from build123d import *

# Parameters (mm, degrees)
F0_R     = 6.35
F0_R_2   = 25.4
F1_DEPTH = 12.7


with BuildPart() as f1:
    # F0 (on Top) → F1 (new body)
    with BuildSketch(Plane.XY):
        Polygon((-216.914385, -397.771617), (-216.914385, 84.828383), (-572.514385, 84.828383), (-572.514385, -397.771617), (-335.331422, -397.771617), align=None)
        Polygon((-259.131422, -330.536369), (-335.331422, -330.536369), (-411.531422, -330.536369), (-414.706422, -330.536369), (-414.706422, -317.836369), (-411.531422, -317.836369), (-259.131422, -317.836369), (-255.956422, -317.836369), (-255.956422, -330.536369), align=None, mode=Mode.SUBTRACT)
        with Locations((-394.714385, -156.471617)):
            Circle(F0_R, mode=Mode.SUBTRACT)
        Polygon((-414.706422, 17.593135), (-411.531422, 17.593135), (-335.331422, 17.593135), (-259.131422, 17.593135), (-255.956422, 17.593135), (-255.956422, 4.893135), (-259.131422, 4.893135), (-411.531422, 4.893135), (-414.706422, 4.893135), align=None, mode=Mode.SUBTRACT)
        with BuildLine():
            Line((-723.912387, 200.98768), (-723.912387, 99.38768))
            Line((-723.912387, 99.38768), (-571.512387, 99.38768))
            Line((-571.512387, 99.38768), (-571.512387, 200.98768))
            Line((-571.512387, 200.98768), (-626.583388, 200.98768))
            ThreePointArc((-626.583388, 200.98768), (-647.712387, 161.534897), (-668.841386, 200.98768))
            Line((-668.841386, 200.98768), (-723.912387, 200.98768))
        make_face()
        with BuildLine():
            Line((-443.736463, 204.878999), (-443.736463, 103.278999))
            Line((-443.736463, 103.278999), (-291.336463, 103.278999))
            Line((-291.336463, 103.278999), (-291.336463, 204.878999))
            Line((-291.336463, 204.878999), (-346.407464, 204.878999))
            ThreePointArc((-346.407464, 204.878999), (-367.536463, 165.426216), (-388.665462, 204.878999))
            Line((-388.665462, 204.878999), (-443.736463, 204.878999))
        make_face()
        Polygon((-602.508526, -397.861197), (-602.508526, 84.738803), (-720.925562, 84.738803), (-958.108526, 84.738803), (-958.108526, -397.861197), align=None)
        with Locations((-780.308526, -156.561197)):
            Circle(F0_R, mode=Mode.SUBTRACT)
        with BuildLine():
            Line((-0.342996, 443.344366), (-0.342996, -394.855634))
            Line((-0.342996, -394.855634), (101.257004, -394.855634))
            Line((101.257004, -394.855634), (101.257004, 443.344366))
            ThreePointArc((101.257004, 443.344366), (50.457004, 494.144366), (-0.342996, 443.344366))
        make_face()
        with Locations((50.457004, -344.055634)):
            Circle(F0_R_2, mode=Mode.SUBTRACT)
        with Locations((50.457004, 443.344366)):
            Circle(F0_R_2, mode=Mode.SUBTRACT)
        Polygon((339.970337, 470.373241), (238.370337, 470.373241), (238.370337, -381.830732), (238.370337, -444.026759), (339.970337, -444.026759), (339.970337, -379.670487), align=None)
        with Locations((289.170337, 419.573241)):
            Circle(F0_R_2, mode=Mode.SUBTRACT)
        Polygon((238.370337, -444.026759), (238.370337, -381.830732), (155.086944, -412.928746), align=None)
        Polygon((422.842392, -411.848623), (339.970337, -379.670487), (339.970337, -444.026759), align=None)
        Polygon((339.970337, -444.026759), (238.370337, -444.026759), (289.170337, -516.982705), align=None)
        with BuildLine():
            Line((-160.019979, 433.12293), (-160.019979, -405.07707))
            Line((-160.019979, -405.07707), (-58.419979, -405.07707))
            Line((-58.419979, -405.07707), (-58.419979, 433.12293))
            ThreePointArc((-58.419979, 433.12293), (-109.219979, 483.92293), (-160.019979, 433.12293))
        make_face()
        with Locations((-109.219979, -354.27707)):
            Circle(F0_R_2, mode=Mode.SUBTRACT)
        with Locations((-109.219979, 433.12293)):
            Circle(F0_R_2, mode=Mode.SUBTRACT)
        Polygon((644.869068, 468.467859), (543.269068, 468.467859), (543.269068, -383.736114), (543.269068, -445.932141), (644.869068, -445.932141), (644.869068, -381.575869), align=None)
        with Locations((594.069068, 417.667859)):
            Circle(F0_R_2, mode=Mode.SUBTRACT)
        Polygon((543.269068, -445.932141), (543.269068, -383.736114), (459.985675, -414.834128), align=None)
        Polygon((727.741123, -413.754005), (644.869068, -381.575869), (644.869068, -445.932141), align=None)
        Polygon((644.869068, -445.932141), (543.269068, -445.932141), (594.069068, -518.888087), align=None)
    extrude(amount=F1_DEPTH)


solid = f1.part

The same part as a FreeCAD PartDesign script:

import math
import FreeCAD as App
import Part
import Sketcher
from FreeCAD import Vector
Q = App.Units.Quantity

doc = App.newDocument("Part")
body = doc.addObject("PartDesign::Body", "Body")
body.AllowCompound = True

sketch1 = doc.addObject("Sketcher::SketchObject", "Sketch")
body.addObject(sketch1)
sketch1.AttachmentSupport = (doc.XY_Plane, [""])
sketch1.MapMode = "FlatFace"
sketch1.addGeometry([
    Part.LineSegment(Vector(-217, -398, 0), Vector(-217, 85, 0)),
    Part.LineSegment(Vector(-217, 85, 0), Vector(-573, 85, 0)),
    Part.LineSegment(Vector(-573, 85, 0), Vector(-573, -398, 0)),
    Part.LineSegment(Vector(-573, -398, 0), Vector(-217, -398, 0)),
    Part.Circle(Vector(-395, -156, 0), Vector(0, 0, 1), 6),
    Part.LineSegment(Vector(-256, -331, 0), Vector(-415, -331, 0)),
    Part.LineSegment(Vector(-415, -331, 0), Vector(-415, -318, 0)),
    Part.LineSegment(Vector(-415, -318, 0), Vector(-256, -318, 0)),
    Part.LineSegment(Vector(-256, -318, 0), Vector(-256, -331, 0)),
    Part.LineSegment(Vector(-415, 5, 0), Vector(-415, 18, 0)),
    Part.LineSegment(Vector(-415, 18, 0), Vector(-256, 18, 0)),
    Part.LineSegment(Vector(-256, 18, 0), Vector(-256, 5, 0)),
    Part.LineSegment(Vector(-256, 5, 0), Vector(-415, 5, 0)),
    Part.LineSegment(Vector(-724, 201, 0), Vector(-724, 99, 0)),
    Part.LineSegment(Vector(-724, 99, 0), Vector(-572, 99, 0)),
    Part.LineSegment(Vector(-572, 99, 0), Vector(-572, 201, 0)),
    Part.LineSegment(Vector(-572, 201, 0), Vector(-627, 201, 0)),
    Part.ArcOfCircle(Part.Circle(Vector(-648, 187, 0), Vector(0, 0, 1), 25), math.radians(146), math.radians(394)),
    Part.LineSegment(Vector(-669, 201, 0), Vector(-724, 201, 0)),
    Part.LineSegment(Vector(-444, 205, 0), Vector(-444, 103, 0)),
    Part.LineSegment(Vector(-444, 103, 0), Vector(-291, 103, 0)),
    Part.LineSegment(Vector(-291, 103, 0), Vector(-291, 205, 0)),
    Part.LineSegment(Vector(-291, 205, 0), Vector(-346, 205, 0)),
    Part.ArcOfCircle(Part.Circle(Vector(-368, 191, 0), Vector(0, 0, 1), 25), math.radians(146), math.radians(394)),
    Part.LineSegment(Vector(-389, 205, 0), Vector(-444, 205, 0)),
    Part.LineSegment(Vector(-603, -398, 0), Vector(-603, 85, 0)),
    Part.LineSegment(Vector(-603, 85, 0), Vector(-958, 85, 0)),
    Part.LineSegment(Vector(-958, 85, 0), Vector(-958, -398, 0)),
    Part.LineSegment(Vector(-958, -398, 0), Vector(-603, -398, 0)),
    Part.Circle(Vector(-780, -157, 0), Vector(0, 0, 1), 6),
    Part.LineSegment(Vector(0, 443, 0), Vector(0, -395, 0)),
    Part.LineSegment(Vector(0, -395, 0), Vector(101, -395, 0)),
    Part.LineSegment(Vector(101, -395, 0), Vector(101, 443, 0)),
    Part.ArcOfCircle(Part.Circle(Vector(50, 443, 0), Vector(0, 0, 1), 51), math.radians(0), math.radians(180)),
    Part.Circle(Vector(50, -344, 0), Vector(0, 0, 1), 25),
    Part.Circle(Vector(50, 443, 0), Vector(0, 0, 1), 25),
    Part.LineSegment(Vector(340, 470, 0), Vector(238, 470, 0)),
    Part.LineSegment(Vector(238, 470, 0), Vector(238, -382, 0)),
    Part.LineSegment(Vector(238, -382, 0), Vector(155, -413, 0)),
    Part.LineSegment(Vector(155, -413, 0), Vector(238, -444, 0)),
    Part.LineSegment(Vector(238, -444, 0), Vector(289, -517, 0)),
    Part.LineSegment(Vector(289, -517, 0), Vector(340, -444, 0)),
    Part.LineSegment(Vector(340, -444, 0), Vector(423, -412, 0)),
    Part.LineSegment(Vector(423, -412, 0), Vector(340, -380, 0)),
    Part.LineSegment(Vector(340, -380, 0), Vector(340, 470, 0)),
    Part.Circle(Vector(289, 420, 0), Vector(0, 0, 1), 25),
    Part.LineSegment(Vector(-160, 433, 0), Vector(-160, -405, 0)),
    Part.LineSegment(Vector(-160, -405, 0), Vector(-58, -405, 0)),
    Part.LineSegment(Vector(-58, -405, 0), Vector(-58, 433, 0)),
    Part.ArcOfCircle(Part.Circle(Vector(-109, 433, 0), Vector(0, 0, 1), 51), math.radians(0), math.radians(180)),
    Part.Circle(Vector(-109, -354, 0), Vector(0, 0, 1), 25),
    Part.Circle(Vector(-109, 433, 0), Vector(0, 0, 1), 25),
    Part.LineSegment(Vector(645, 468, 0), Vector(543, 468, 0)),
    Part.LineSegment(Vector(543, 468, 0), Vector(543, -384, 0)),
    Part.LineSegment(Vector(543, -384, 0), Vector(460, -415, 0)),
    Part.LineSegment(Vector(460, -415, 0), Vector(543, -446, 0)),
    Part.LineSegment(Vector(543, -446, 0), Vector(594, -519, 0)),
    Part.LineSegment(Vector(594, -519, 0), Vector(645, -446, 0)),
    Part.LineSegment(Vector(645, -446, 0), Vector(728, -414, 0)),
    Part.LineSegment(Vector(728, -414, 0), Vector(645, -382, 0)),
    Part.LineSegment(Vector(645, -382, 0), Vector(645, 468, 0)),
    Part.Circle(Vector(594, 418, 0), Vector(0, 0, 1), 25),
], False)
sketch1.addConstraint([
    Sketcher.Constraint("Coincident", 0, 2, 1, 1),
    Sketcher.Constraint("Coincident", 1, 2, 2, 1),
    Sketcher.Constraint("Coincident", 2, 2, 3, 1),
    Sketcher.Constraint("Coincident", 3, 2, 0, 1),
    Sketcher.Constraint("Coincident", 5, 2, 6, 1),
    Sketcher.Constraint("Coincident", 6, 2, 7, 1),
    Sketcher.Constraint("Coincident", 7, 2, 8, 1),
    Sketcher.Constraint("Coincident", 8, 2, 5, 1),
    Sketcher.Constraint("Coincident", 9, 2, 10, 1),
    Sketcher.Constraint("Coincident", 10, 2, 11, 1),
    Sketcher.Constraint("Coincident", 11, 2, 12, 1),
    Sketcher.Constraint("Coincident", 12, 2, 9, 1),
    Sketcher.Constraint("Coincident", 13, 2, 14, 1),
    Sketcher.Constraint("Coincident", 14, 2, 15, 1),
    Sketcher.Constraint("Coincident", 15, 2, 16, 1),
    Sketcher.Constraint("Coincident", 16, 2, 17, 2),
    Sketcher.Constraint("Coincident", 17, 1, 18, 1),
    Sketcher.Constraint("Coincident", 18, 2, 13, 1),
    Sketcher.Constraint("Coincident", 19, 2, 20, 1),
    Sketcher.Constraint("Coincident", 20, 2, 21, 1),
    Sketcher.Constraint("Coincident", 21, 2, 22, 1),
    Sketcher.Constraint("Coincident", 22, 2, 23, 2),
    Sketcher.Constraint("Coincident", 23, 1, 24, 1),
    Sketcher.Constraint("Coincident", 24, 2, 19, 1),
    Sketcher.Constraint("Coincident", 25, 2, 26, 1),
    Sketcher.Constraint("Coincident", 26, 2, 27, 1),
    Sketcher.Constraint("Coincident", 27, 2, 28, 1),
    Sketcher.Constraint("Coincident", 28, 2, 25, 1),
    Sketcher.Constraint("Coincident", 30, 2, 31, 1),
    Sketcher.Constraint("Coincident", 31, 2, 32, 1),
    Sketcher.Constraint("Tangent", 32, 2, 33, 1),
    Sketcher.Constraint("Tangent", 33, 2, 30, 1),
    Sketcher.Constraint("Coincident", 36, 2, 37, 1),
    Sketcher.Constraint("Coincident", 37, 2, 38, 1),
    Sketcher.Constraint("Coincident", 38, 2, 39, 1),
    Sketcher.Constraint("Coincident", 39, 2, 40, 1),
    Sketcher.Constraint("Coincident", 40, 2, 41, 1),
    Sketcher.Constraint("Coincident", 41, 2, 42, 1),
    Sketcher.Constraint("Coincident", 42, 2, 43, 1),
    Sketcher.Constraint("Coincident", 43, 2, 44, 1),
    Sketcher.Constraint("Coincident", 44, 2, 36, 1),
    Sketcher.Constraint("Coincident", 46, 2, 47, 1),
    Sketcher.Constraint("Coincident", 47, 2, 48, 1),
    Sketcher.Constraint("Tangent", 48, 2, 49, 1),
    Sketcher.Constraint("Tangent", 49, 2, 46, 1),
    Sketcher.Constraint("Coincident", 52, 2, 53, 1),
    Sketcher.Constraint("Coincident", 53, 2, 54, 1),
    Sketcher.Constraint("Coincident", 54, 2, 55, 1),
    Sketcher.Constraint("Coincident", 55, 2, 56, 1),
    Sketcher.Constraint("Coincident", 56, 2, 57, 1),
    Sketcher.Constraint("Coincident", 57, 2, 58, 1),
    Sketcher.Constraint("Coincident", 58, 2, 59, 1),
    Sketcher.Constraint("Coincident", 59, 2, 60, 1),
    Sketcher.Constraint("Coincident", 60, 2, 52, 1),
    Sketcher.Constraint("Vertical", 0),
    Sketcher.Constraint("Horizontal", 1),
    Sketcher.Constraint("Vertical", 2),
    Sketcher.Constraint("Horizontal", 3),
    Sketcher.Constraint("Horizontal", 5),
    Sketcher.Constraint("Vertical", 6),
    Sketcher.Constraint("Horizontal", 7),
    Sketcher.Constraint("Vertical", 8),
    Sketcher.Constraint("Vertical", 9),
    Sketcher.Constraint("Horizontal", 10),
    Sketcher.Constraint("Vertical", 11),
    Sketcher.Constraint("Horizontal", 12),
    Sketcher.Constraint("Vertical", 13),
    Sketcher.Constraint("Horizontal", 14),
    Sketcher.Constraint("Vertical", 15),
    Sketcher.Constraint("Horizontal", 16),
    Sketcher.Constraint("Horizontal", 18),
    Sketcher.Constraint("Vertical", 19),
    Sketcher.Constraint("Horizontal", 20),
    Sketcher.Constraint("Vertical", 21),
    Sketcher.Constraint("Horizontal", 22),
    Sketcher.Constraint("Horizontal", 24),
    Sketcher.Constraint("Vertical", 25),
    Sketcher.Constraint("Horizontal", 26),
    Sketcher.Constraint("Vertical", 27),
    Sketcher.Constraint("Horizontal", 28),
    Sketcher.Constraint("Vertical", 30),
    Sketcher.Constraint("Horizontal", 31),
    Sketcher.Constraint("Vertical", 32),
    Sketcher.Constraint("Horizontal", 36),
    Sketcher.Constraint("Vertical", 37),
    Sketcher.Constraint("Vertical", 44),
    Sketcher.Constraint("Vertical", 46),
    Sketcher.Constraint("Horizontal", 47),
    Sketcher.Constraint("Vertical", 48),
    Sketcher.Constraint("Horizontal", 52),
    Sketcher.Constraint("Vertical", 53),
    Sketcher.Constraint("Vertical", 60),
    Sketcher.Constraint("Coincident", 35, 3, 33, 3),
    Sketcher.Constraint("Coincident", 51, 3, 49, 3),
    Sketcher.Constraint("Equal", 17, 23),
    Sketcher.Constraint("Equal", 4, 29),
    Sketcher.Constraint("Equal", 34, 35),
    Sketcher.Constraint("Equal", 35, 45),
    Sketcher.Constraint("Equal", 33, 49),
    Sketcher.Constraint("Equal", 45, 50),
    Sketcher.Constraint("Equal", 50, 51),
    Sketcher.Constraint("Equal", 51, 61),
    Sketcher.Constraint("Parallel", 38, 54),
    Sketcher.Constraint("Parallel", 39, 55),
    Sketcher.Constraint("Parallel", 40, 56),
    Sketcher.Constraint("Parallel", 41, 57),
    Sketcher.Constraint("Parallel", 42, 58),
    Sketcher.Constraint("Parallel", 43, 59),
    Sketcher.Constraint("Horizontal", 16, 2, 17, 1),
    Sketcher.Constraint("Horizontal", 22, 2, 23, 1),
    Sketcher.Constraint("Horizontal", 39, 2, 41, 2),
    Sketcher.Constraint("Horizontal", 55, 2, 57, 2),
    Sketcher.Constraint("Vertical", 33, 3, 34, 3),
    Sketcher.Constraint("Vertical", 49, 3, 50, 3),
    Sketcher.Constraint("Vertical", 6, 2, 9, 2),
    Sketcher.Constraint("Vertical", 8, 2, 10, 2),
    Sketcher.Constraint("Vertical", 37, 2, 39, 2),
    Sketcher.Constraint("Vertical", 45, 3, 40, 2),
    Sketcher.Constraint("Vertical", 41, 2, 43, 2),
    Sketcher.Constraint("Vertical", 53, 2, 55, 2),
    Sketcher.Constraint("Vertical", 61, 3, 56, 2),
    Sketcher.Constraint("Vertical", 57, 2, 59, 2),
    Sketcher.Constraint("Equal", 16, 18),
    Sketcher.Constraint("Equal", 14, 20),
    Sketcher.Constraint("Equal", 18, 22),
    Sketcher.Constraint("Equal", 22, 24),
    Sketcher.Constraint("Equal", 3, 26),
    Sketcher.Constraint("Equal", 31, 36),
    Sketcher.Constraint("Equal", 47, 52),
    Sketcher.Constraint("Equal", 8, 9),
    Sketcher.Constraint("Equal", 52, 13),
    Sketcher.Constraint("Equal", 15, 19),
    Sketcher.Constraint("Equal", 2, 25),
    Sketcher.Constraint("Equal", 32, 46),
    Sketcher.Constraint("Equal", 37, 53),
    Sketcher.Constraint("Equal", 44, 60),
    Sketcher.Constraint("Equal", 38, 39),
    Sketcher.Constraint("Equal", 39, 40),
    Sketcher.Constraint("Equal", 40, 41),
    Sketcher.Constraint("Equal", 41, 42),
    Sketcher.Constraint("Equal", 42, 43),
    Sketcher.Constraint("Equal", 43, 54),
    Sketcher.Constraint("Diameter", 34, Q("2 in")),
    Sketcher.Constraint("Radius", 33, Q("2 in")),
    Sketcher.Constraint("Diameter", 4, Q("0.5 in")),
    Sketcher.Constraint("DistanceX", 1, 2, 1, 1, Q("14 in")),
    Sketcher.Constraint("DistanceX", 14, 1, 14, 2, Q("6 in")),
    Sketcher.Constraint("DistanceY", 0, 1, 0, 2, Q("19 in")),
    Sketcher.Constraint("DistanceY", 30, 2, 30, 1, Q("33 in")),
    Sketcher.Constraint("DistanceY", 6, 1, 6, 2, Q("0.5 in")),
    Sketcher.Constraint("Distance", 38, Q("3.5 in")),
    Sketcher.Constraint("DistanceX", 5, 2, 5, 1, Q("6.25 in")),
    Sketcher.Constraint("DistanceX", 16, 2, 16, 1, Q("55.071001 mm")),
    Sketcher.Constraint("DistanceY", 4, 3, -1, 1, Q("6.1602999 in")),
    Sketcher.Constraint("DistanceY", -1, 1, 0, 2, Q("3.3397001 in")),
    Sketcher.Constraint("Radius", 17, Q("25.384226 mm")),
    Sketcher.Constraint("DistanceY", 44, 1, 44, 2, Q("850.043728 mm")),
    Sketcher.Constraint("DistanceY", -1, 1, 19, 2, Q("103.278999 mm")),
    Sketcher.Constraint("DistanceY", 37, 2, 37, 1, Q("852.203973 mm")),
    Sketcher.Constraint("DistanceY", -1, 1, 45, 3, Q("419.573241 mm")),
    Sketcher.Constraint("DistanceX", 49, 3, -1, 1, Q("109.219979 mm")),
    Sketcher.Constraint("DistanceY", -1, 1, 49, 3, Q("433.12293 mm")),
    Sketcher.Constraint("DistanceY", 50, 3, -1, 1, Q("354.27707 mm")),
    Sketcher.Constraint("DistanceX", -1, 1, 61, 3, Q("594.069068 mm")),
    Sketcher.Constraint("DistanceY", -1, 1, 61, 3, Q("417.667859 mm")),
    Sketcher.Constraint("DistanceX", 5, 2, -1, 1, Q("414.706422 mm")),
    Sketcher.Constraint("DistanceY", 5, 2, -1, 1, Q("330.536369 mm")),
    Sketcher.Constraint("DistanceY", -1, 1, 13, 2, Q("99.38768 mm")),
    Sketcher.Constraint("DistanceX", 16, 2, -1, 1, Q("626.583388 mm")),
    Sketcher.Constraint("DistanceY", -1, 1, 36, 2, Q("470.373241 mm")),
    Sketcher.Constraint("DistanceY", 39, 2, -1, 1, Q("444.026759 mm")),
    Sketcher.Constraint("DistanceX", -1, 1, 42, 2, Q("422.842392 mm")),
    Sketcher.Constraint("DistanceY", -1, 1, 52, 2, Q("468.467859 mm")),
    Sketcher.Constraint("DistanceX", 4, 3, -1, 1, Q("394.714385 mm")),
    Sketcher.Constraint("DistanceX", 23, 3, -1, 1, Q("367.536463 mm")),
    Sketcher.Constraint("DistanceX", 29, 3, -1, 1, Q("780.308526 mm")),
    Sketcher.Constraint("DistanceY", 29, 3, -1, 1, Q("156.561197 mm")),
    Sketcher.Constraint("DistanceX", -1, 1, 33, 3, Q("50.457004 mm")),
    Sketcher.Constraint("DistanceY", -1, 1, 33, 3, Q("443.344366 mm")),
    Sketcher.Constraint("DistanceY", 34, 3, -1, 1, Q("344.055634 mm")),
    Sketcher.Constraint("DistanceX", 0, 2, -1, 1, Q("216.914385 mm")),
    Sketcher.Constraint("DistanceY", -1, 1, 9, 2, Q("17.593135 mm")),
    Sketcher.Constraint("DistanceX", 25, 2, -1, 1, Q("602.508526 mm")),
    Sketcher.Constraint("DistanceY", -1, 1, 25, 2, Q("84.738803 mm")),
])
pad1 = doc.addObject("PartDesign::Pad", "Pad")
body.addObject(pad1)
pad1.Profile = sketch1
pad1.Length = Q("0.5 in")

doc.recompute()
